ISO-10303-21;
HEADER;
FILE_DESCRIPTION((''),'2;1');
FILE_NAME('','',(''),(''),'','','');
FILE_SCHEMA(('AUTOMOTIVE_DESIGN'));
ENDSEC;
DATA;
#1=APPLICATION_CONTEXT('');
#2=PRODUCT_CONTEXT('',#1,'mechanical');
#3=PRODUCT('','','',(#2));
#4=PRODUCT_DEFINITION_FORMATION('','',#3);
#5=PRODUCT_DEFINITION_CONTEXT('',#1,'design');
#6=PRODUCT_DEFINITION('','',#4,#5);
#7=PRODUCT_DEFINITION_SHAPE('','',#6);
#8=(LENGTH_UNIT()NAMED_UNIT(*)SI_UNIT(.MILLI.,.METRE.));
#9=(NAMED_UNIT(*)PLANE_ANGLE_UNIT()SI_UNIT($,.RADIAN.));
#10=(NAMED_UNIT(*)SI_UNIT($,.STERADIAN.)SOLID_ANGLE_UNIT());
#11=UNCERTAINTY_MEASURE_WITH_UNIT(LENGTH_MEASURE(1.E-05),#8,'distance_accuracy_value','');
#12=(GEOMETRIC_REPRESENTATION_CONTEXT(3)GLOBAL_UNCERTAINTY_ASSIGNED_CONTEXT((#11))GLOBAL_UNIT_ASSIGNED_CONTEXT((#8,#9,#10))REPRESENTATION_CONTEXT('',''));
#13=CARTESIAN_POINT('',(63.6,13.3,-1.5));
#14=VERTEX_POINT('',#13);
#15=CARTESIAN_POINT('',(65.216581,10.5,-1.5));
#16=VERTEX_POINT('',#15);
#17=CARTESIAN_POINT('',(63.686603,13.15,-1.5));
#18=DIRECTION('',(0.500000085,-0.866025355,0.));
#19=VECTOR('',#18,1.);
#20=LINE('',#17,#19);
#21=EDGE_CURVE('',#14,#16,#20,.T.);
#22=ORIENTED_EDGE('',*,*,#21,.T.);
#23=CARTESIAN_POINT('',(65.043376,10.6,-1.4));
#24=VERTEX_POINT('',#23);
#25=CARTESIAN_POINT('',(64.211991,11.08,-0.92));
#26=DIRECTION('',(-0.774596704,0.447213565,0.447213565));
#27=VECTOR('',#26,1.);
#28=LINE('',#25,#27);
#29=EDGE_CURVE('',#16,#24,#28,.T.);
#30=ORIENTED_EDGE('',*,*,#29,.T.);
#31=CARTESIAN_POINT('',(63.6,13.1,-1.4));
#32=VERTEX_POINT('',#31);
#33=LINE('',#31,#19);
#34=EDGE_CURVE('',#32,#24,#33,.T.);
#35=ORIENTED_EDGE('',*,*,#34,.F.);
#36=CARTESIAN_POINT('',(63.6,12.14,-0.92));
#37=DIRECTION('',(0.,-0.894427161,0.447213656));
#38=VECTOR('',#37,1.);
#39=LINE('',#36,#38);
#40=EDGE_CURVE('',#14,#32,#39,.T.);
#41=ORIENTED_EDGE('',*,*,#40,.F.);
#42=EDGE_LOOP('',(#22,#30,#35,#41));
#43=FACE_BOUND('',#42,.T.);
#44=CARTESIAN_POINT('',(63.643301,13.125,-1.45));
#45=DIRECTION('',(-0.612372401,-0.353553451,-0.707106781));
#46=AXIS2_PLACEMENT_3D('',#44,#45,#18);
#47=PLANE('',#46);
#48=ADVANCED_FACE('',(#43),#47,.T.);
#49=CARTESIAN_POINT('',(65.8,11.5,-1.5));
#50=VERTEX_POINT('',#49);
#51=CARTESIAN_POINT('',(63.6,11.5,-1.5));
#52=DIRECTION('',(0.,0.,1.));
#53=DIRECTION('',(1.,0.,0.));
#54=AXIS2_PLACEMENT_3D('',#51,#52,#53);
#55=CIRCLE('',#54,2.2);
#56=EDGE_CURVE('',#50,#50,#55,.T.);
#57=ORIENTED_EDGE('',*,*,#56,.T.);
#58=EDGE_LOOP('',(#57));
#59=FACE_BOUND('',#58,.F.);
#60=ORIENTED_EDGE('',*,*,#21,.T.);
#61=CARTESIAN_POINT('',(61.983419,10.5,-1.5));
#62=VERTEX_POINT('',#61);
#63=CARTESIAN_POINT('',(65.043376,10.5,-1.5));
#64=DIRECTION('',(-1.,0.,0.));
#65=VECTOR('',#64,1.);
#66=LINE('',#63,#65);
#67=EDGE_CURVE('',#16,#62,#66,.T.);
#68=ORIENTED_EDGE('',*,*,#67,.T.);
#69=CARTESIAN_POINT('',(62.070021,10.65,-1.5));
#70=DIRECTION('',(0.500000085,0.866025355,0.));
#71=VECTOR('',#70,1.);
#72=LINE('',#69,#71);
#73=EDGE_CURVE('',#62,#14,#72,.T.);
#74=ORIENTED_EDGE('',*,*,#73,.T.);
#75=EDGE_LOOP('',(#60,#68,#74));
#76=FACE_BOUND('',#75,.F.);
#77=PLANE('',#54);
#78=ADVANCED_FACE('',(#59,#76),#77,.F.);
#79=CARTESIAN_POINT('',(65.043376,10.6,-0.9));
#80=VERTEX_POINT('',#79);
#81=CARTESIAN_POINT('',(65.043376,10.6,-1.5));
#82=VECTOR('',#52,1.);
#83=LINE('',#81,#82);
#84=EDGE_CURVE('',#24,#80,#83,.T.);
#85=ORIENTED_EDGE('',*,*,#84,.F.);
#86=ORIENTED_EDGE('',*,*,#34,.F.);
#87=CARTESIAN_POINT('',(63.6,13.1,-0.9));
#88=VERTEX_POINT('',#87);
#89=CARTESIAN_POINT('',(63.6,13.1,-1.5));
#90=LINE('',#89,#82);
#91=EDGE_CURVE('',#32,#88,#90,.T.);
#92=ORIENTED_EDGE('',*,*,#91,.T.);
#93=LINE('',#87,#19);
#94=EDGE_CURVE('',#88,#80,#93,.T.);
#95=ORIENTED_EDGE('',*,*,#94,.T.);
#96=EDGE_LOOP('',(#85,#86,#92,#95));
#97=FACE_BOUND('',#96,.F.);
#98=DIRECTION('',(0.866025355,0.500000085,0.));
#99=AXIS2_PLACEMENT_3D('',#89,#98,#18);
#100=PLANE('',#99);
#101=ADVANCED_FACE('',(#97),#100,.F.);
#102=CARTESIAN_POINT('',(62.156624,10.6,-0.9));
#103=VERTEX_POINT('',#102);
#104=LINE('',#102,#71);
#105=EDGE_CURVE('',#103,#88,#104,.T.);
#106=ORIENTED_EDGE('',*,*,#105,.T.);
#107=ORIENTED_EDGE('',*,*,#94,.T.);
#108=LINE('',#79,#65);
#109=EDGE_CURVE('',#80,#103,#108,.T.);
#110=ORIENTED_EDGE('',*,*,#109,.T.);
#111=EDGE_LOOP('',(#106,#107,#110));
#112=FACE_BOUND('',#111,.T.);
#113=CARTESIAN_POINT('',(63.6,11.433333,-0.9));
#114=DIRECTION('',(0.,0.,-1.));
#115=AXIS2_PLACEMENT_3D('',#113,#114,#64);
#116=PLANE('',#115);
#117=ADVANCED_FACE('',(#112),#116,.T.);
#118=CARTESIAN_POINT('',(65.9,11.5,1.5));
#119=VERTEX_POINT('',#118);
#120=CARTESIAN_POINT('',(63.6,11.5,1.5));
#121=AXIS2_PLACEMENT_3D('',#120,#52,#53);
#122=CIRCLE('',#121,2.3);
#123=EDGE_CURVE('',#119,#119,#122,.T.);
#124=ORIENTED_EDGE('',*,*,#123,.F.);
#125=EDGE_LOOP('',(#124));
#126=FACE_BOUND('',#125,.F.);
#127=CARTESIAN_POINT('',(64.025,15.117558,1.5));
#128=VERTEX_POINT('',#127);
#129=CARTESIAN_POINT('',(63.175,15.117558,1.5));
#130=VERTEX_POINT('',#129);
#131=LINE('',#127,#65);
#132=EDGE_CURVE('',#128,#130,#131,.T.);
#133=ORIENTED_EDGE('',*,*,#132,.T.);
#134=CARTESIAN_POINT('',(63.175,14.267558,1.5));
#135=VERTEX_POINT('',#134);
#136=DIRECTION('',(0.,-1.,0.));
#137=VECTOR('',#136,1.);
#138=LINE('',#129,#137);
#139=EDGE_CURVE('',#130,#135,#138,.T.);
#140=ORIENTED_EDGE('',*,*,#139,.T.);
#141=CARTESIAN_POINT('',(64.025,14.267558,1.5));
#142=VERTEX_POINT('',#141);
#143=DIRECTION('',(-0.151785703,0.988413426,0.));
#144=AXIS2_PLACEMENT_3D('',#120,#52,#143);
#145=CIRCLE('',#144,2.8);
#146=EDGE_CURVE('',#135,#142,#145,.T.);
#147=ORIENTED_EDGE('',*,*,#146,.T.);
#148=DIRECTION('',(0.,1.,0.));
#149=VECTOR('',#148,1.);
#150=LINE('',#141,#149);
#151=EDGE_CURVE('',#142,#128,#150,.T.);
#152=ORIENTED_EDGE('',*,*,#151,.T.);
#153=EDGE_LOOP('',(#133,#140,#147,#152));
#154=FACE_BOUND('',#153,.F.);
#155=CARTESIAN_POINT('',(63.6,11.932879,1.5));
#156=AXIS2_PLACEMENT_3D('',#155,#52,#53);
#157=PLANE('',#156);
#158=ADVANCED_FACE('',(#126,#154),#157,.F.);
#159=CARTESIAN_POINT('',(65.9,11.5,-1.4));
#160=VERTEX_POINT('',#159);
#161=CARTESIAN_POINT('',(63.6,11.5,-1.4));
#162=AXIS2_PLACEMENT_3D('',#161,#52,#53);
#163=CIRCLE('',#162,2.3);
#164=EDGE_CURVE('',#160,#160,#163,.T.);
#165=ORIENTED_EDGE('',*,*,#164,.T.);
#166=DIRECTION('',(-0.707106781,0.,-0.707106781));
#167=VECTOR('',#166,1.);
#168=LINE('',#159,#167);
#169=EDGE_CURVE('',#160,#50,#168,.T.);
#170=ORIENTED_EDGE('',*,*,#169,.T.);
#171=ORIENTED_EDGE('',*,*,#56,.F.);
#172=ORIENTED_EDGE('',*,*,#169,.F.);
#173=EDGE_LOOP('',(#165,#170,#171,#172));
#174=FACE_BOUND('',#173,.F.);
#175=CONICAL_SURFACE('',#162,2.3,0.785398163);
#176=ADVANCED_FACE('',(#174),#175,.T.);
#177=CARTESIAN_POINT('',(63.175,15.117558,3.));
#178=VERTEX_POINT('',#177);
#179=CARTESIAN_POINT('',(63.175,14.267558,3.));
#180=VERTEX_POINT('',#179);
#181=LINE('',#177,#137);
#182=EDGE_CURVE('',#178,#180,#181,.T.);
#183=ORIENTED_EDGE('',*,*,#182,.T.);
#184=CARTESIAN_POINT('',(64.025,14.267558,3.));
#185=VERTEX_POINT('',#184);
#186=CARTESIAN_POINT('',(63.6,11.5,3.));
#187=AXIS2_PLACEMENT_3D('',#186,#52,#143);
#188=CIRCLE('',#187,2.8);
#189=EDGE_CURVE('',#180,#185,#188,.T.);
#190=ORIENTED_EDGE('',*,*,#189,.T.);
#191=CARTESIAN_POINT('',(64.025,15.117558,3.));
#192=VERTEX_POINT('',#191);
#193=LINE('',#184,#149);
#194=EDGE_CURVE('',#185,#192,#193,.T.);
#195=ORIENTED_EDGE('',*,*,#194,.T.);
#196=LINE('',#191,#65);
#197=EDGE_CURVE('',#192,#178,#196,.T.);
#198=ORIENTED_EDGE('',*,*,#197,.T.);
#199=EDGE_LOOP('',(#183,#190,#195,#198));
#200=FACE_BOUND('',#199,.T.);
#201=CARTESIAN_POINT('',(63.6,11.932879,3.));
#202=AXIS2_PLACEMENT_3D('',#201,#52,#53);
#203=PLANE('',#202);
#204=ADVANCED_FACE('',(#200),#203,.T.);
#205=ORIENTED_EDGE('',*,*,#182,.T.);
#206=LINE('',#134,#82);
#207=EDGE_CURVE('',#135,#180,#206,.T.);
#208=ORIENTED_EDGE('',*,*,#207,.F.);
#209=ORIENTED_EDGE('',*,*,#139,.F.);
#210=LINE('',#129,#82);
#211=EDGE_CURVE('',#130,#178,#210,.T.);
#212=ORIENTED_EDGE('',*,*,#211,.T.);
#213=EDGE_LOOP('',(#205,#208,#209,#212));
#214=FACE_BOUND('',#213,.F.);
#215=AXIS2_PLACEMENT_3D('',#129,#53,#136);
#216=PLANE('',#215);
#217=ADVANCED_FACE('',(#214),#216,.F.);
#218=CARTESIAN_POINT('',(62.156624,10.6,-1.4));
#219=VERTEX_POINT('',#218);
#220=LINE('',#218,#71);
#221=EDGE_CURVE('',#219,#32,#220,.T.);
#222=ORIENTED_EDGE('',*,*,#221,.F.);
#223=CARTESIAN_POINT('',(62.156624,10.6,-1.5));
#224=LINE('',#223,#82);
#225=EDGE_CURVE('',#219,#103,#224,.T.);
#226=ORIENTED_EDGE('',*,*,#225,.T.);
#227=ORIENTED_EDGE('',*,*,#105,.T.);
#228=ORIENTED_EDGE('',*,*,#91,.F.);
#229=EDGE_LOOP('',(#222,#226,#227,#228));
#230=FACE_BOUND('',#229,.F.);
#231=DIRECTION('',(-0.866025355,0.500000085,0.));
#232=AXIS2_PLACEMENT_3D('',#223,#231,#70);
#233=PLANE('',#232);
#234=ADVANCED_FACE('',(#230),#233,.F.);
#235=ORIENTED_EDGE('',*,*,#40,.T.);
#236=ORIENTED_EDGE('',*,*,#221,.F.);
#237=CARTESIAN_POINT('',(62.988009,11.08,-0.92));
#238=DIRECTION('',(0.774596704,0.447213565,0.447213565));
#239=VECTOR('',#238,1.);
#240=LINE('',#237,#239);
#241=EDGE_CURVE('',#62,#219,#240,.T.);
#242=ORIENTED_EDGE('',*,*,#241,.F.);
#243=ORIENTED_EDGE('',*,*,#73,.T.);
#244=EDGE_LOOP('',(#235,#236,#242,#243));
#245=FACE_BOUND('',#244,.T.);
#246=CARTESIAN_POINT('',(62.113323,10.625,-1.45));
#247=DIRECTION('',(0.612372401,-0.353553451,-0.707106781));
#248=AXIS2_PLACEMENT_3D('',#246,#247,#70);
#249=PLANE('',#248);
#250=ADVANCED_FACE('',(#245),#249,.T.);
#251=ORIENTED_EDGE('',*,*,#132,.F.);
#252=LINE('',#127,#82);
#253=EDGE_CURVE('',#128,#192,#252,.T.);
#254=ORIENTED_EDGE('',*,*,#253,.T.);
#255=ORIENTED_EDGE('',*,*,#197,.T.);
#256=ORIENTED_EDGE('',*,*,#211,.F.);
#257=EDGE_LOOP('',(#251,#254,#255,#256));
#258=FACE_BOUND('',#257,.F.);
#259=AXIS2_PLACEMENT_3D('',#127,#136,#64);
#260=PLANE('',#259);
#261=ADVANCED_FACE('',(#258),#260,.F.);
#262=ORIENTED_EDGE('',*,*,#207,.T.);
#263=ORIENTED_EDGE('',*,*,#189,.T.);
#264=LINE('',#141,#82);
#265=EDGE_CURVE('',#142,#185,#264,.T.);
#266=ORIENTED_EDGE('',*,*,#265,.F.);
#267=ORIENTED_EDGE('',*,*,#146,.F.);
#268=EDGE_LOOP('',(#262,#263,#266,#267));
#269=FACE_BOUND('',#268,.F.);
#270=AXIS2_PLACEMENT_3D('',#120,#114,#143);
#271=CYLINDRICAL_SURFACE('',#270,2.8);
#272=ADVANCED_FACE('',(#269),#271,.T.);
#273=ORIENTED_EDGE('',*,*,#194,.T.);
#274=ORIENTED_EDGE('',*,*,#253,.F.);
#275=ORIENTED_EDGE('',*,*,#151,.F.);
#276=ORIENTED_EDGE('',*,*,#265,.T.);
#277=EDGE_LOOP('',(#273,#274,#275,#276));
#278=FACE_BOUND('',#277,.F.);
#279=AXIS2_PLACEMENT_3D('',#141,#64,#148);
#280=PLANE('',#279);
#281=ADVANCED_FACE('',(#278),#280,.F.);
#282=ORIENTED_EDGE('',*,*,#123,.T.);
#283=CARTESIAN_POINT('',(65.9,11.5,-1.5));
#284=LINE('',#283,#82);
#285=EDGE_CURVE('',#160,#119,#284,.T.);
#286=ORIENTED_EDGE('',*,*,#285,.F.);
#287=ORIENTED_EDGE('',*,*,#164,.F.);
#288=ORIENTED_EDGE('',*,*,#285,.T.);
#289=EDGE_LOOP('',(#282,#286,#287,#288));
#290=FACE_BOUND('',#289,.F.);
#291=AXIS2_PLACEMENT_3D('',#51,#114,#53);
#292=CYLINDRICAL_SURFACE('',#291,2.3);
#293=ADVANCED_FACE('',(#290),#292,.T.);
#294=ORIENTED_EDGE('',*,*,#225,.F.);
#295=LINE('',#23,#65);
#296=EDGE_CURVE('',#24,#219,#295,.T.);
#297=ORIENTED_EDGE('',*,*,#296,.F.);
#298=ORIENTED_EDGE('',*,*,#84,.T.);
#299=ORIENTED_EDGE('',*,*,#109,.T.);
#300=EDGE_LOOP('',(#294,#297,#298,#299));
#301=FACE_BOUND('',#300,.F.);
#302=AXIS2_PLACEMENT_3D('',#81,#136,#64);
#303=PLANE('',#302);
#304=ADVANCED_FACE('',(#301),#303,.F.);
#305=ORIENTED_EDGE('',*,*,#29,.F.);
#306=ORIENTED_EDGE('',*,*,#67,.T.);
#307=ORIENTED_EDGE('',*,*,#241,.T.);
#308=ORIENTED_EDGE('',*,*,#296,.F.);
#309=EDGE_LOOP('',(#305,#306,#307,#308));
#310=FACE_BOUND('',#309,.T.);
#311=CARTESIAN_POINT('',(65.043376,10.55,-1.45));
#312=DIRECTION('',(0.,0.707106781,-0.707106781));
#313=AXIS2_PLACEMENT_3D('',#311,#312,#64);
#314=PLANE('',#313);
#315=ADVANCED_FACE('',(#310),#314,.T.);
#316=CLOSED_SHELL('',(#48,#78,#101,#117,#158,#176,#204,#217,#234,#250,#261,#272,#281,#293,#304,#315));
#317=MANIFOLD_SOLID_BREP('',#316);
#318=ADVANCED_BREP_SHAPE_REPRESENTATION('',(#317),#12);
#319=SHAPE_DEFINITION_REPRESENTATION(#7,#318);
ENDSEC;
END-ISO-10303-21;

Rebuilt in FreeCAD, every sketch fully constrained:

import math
import FreeCAD as App
import Part
import Sketcher
from FreeCAD import Vector
Q = App.Units.Quantity


def edges_at(feature, points):
    """Names of the edges that pass closest to the given points."""
    edges = feature.Shape.Edges
    near = lambda p: min(range(len(edges)), key=lambda i: edges[i].distToShape(Part.Vertex(*p))[0])
    return sorted({f"Edge{near(p) + 1}" for p in points})

doc = App.newDocument("Part")
params = doc.addObject("Spreadsheet::Sheet", "Params")
for row, (alias, value) in enumerate([
    ("sketch1_diameter", "4.6 mm"),
    ("pad1_length", "3 mm"),
    ("sketch2_radius", "2.8 mm"),
    ("sketch2_width", "0.85 mm"),
    ("pad2_length", "1.5 mm"),
    ("pocket1_length", "0.6 mm"),
    ("chamfer_size", "0.1 mm"),
], start=1):
    params.set(f"A{row}", alias)
    params.set(f"B{row}", "=" + value)
    params.setAlias(f"B{row}", alias)

body = doc.addObject("PartDesign::Body", "Body")

# Sketch on XY plane
sketch1 = doc.addObject("Sketcher::SketchObject", "Sketch")
body.addObject(sketch1)
sketch1.AttachmentSupport = (doc.XY_Plane, [""])
sketch1.MapMode = "FlatFace"
sketch1.addGeometry(Part.Circle(Vector(0, 0, 0), Vector(0, 0, 1), 2.3), False)
sketch1.addConstraint([
    Sketcher.Constraint("Coincident", 0, 3, -1, 1),
    Sketcher.Constraint("Diameter", 0, 4.6),
])
sketch1.setExpression("Constraints[1]", "Params.sketch1_diameter")
pad1 = doc.addObject("PartDesign::Pad", "Pad")
body.addObject(pad1)
pad1.Profile = sketch1
pad1.setExpression("Length", "Params.pad1_length")

# Sketch on XY plane
sketch2 = doc.addObject("Sketcher::SketchObject", "Sketch001")
body.addObject(sketch2)
sketch2.AttachmentSupport = (doc.XY_Plane, [""])
sketch2.MapMode = "FlatFace"
sketch2.AttachmentOffset = App.Placement(Vector(0, 0, 3), App.Rotation())
sketch2.addGeometry([
    Part.LineSegment(Vector(0.4, 2.8, 0), Vector(0.4, 3.6, 0)),
    Part.LineSegment(Vector(0.4, 3.6, 0), Vector(-0.4, 3.6, 0)),
    Part.LineSegment(Vector(-0.4, 3.6, 0), Vector(-0.4, 2.8, 0)),
    Part.ArcOfCircle(Part.Circle(Vector(0, 0, 0), Vector(0, 0, 1), 2.8), math.radians(99), math.radians(441)),
], False)
sketch2.addConstraint([
    Sketcher.Constraint("Coincident", 0, 2, 1, 1),
    Sketcher.Constraint("Coincident", 1, 2, 2, 1),
    Sketcher.Constraint("Coincident", 2, 2, 3, 1),
    Sketcher.Constraint("Coincident", 3, 2, 0, 1),
    Sketcher.Constraint("Vertical", 0),
    Sketcher.Constraint("Horizontal", 1),
    Sketcher.Constraint("Vertical", 2),
    Sketcher.Constraint("Coincident", 3, 3, -1, 1),
    Sketcher.Constraint("Horizontal", 2, 2, 3, 2),
    Sketcher.Constraint("Equal", 1, 0),
    Sketcher.Constraint("Radius", 3, 2.8),
    Sketcher.Constraint("DistanceX", 1, 2, 1, 1, 0.85),
])
sketch2.setExpression("Constraints[10]", "Params.sketch2_radius")
sketch2.setExpression("Constraints[11]", "Params.sketch2_width")
pad2 = doc.addObject("PartDesign::Pad", "Pad001")
body.addObject(pad2)
pad2.Profile = sketch2
pad2.setExpression("Length", "Params.pad2_length")

# Sketch on XY plane
sketch3 = doc.addObject("Sketcher::SketchObject", "Sketch002")
body.addObject(sketch3)
sketch3.AttachmentSupport = (doc.XY_Plane, [""])
sketch3.MapMode = "FlatFace"
sketch3.addGeometry([
    Part.LineSegment(Vector(0, 1.6, 0), Vector(-1.4, -0.9, 0)),
    Part.LineSegment(Vector(-1.4, -0.9, 0), Vector(1.4, -0.9, 0)),
    Part.LineSegment(Vector(1.4, -0.9, 0), Vector(0, 1.6, 0)),
], False)
sketch3.addConstraint([
    Sketcher.Constraint("Coincident", 0, 2, 1, 1),
    Sketcher.Constraint("Coincident", 1, 2, 2, 1),
    Sketcher.Constraint("Coincident", 2, 2, 0, 1),
    Sketcher.Constraint("Horizontal", 1),
    Sketcher.Constraint("PointOnObject", 2, 2, -2),
    Sketcher.Constraint("Equal", 0, 2),
    Sketcher.Constraint("Angle", 0, Q("-120.000006 deg")),
    Sketcher.Constraint("DistanceY", 0, 2, -1, 1, 0.9),
    Sketcher.Constraint("DistanceY", -1, 1, 2, 2, 1.6),
])
pocket1 = doc.addObject("PartDesign::Pocket", "Pocket")
body.addObject(pocket1)
pocket1.Profile = sketch3
pocket1.setExpression("Length", "Params.pocket1_length")
pocket1.Reversed = True
doc.recompute()

chamfer = doc.addObject("PartDesign::Chamfer", "Chamfer")
body.addObject(chamfer)
chamfer.Base = (pocket1, edges_at(pocket1, [
    (-0.722, 0.35, 0),
    (0, -0.9, 0),
    (0.722, 0.35, 0),
    (-2.3, 0, 0),
]))
chamfer.setExpression("Size", "Params.chamfer_size")
body2 = doc.addObject("PartDesign::Body", "Body001")
doc.recompute()

body.Placement = App.Placement(Vector(63.6, 11.5, -1.5), App.Rotation(Vector(0, 0, 1), 0))
boolean = doc.addObject("PartDesign::Boolean", "Boolean")
body2.addObject(boolean)
boolean.Type = "Fuse"
boolean.addObjects([body])

doc.recompute()
